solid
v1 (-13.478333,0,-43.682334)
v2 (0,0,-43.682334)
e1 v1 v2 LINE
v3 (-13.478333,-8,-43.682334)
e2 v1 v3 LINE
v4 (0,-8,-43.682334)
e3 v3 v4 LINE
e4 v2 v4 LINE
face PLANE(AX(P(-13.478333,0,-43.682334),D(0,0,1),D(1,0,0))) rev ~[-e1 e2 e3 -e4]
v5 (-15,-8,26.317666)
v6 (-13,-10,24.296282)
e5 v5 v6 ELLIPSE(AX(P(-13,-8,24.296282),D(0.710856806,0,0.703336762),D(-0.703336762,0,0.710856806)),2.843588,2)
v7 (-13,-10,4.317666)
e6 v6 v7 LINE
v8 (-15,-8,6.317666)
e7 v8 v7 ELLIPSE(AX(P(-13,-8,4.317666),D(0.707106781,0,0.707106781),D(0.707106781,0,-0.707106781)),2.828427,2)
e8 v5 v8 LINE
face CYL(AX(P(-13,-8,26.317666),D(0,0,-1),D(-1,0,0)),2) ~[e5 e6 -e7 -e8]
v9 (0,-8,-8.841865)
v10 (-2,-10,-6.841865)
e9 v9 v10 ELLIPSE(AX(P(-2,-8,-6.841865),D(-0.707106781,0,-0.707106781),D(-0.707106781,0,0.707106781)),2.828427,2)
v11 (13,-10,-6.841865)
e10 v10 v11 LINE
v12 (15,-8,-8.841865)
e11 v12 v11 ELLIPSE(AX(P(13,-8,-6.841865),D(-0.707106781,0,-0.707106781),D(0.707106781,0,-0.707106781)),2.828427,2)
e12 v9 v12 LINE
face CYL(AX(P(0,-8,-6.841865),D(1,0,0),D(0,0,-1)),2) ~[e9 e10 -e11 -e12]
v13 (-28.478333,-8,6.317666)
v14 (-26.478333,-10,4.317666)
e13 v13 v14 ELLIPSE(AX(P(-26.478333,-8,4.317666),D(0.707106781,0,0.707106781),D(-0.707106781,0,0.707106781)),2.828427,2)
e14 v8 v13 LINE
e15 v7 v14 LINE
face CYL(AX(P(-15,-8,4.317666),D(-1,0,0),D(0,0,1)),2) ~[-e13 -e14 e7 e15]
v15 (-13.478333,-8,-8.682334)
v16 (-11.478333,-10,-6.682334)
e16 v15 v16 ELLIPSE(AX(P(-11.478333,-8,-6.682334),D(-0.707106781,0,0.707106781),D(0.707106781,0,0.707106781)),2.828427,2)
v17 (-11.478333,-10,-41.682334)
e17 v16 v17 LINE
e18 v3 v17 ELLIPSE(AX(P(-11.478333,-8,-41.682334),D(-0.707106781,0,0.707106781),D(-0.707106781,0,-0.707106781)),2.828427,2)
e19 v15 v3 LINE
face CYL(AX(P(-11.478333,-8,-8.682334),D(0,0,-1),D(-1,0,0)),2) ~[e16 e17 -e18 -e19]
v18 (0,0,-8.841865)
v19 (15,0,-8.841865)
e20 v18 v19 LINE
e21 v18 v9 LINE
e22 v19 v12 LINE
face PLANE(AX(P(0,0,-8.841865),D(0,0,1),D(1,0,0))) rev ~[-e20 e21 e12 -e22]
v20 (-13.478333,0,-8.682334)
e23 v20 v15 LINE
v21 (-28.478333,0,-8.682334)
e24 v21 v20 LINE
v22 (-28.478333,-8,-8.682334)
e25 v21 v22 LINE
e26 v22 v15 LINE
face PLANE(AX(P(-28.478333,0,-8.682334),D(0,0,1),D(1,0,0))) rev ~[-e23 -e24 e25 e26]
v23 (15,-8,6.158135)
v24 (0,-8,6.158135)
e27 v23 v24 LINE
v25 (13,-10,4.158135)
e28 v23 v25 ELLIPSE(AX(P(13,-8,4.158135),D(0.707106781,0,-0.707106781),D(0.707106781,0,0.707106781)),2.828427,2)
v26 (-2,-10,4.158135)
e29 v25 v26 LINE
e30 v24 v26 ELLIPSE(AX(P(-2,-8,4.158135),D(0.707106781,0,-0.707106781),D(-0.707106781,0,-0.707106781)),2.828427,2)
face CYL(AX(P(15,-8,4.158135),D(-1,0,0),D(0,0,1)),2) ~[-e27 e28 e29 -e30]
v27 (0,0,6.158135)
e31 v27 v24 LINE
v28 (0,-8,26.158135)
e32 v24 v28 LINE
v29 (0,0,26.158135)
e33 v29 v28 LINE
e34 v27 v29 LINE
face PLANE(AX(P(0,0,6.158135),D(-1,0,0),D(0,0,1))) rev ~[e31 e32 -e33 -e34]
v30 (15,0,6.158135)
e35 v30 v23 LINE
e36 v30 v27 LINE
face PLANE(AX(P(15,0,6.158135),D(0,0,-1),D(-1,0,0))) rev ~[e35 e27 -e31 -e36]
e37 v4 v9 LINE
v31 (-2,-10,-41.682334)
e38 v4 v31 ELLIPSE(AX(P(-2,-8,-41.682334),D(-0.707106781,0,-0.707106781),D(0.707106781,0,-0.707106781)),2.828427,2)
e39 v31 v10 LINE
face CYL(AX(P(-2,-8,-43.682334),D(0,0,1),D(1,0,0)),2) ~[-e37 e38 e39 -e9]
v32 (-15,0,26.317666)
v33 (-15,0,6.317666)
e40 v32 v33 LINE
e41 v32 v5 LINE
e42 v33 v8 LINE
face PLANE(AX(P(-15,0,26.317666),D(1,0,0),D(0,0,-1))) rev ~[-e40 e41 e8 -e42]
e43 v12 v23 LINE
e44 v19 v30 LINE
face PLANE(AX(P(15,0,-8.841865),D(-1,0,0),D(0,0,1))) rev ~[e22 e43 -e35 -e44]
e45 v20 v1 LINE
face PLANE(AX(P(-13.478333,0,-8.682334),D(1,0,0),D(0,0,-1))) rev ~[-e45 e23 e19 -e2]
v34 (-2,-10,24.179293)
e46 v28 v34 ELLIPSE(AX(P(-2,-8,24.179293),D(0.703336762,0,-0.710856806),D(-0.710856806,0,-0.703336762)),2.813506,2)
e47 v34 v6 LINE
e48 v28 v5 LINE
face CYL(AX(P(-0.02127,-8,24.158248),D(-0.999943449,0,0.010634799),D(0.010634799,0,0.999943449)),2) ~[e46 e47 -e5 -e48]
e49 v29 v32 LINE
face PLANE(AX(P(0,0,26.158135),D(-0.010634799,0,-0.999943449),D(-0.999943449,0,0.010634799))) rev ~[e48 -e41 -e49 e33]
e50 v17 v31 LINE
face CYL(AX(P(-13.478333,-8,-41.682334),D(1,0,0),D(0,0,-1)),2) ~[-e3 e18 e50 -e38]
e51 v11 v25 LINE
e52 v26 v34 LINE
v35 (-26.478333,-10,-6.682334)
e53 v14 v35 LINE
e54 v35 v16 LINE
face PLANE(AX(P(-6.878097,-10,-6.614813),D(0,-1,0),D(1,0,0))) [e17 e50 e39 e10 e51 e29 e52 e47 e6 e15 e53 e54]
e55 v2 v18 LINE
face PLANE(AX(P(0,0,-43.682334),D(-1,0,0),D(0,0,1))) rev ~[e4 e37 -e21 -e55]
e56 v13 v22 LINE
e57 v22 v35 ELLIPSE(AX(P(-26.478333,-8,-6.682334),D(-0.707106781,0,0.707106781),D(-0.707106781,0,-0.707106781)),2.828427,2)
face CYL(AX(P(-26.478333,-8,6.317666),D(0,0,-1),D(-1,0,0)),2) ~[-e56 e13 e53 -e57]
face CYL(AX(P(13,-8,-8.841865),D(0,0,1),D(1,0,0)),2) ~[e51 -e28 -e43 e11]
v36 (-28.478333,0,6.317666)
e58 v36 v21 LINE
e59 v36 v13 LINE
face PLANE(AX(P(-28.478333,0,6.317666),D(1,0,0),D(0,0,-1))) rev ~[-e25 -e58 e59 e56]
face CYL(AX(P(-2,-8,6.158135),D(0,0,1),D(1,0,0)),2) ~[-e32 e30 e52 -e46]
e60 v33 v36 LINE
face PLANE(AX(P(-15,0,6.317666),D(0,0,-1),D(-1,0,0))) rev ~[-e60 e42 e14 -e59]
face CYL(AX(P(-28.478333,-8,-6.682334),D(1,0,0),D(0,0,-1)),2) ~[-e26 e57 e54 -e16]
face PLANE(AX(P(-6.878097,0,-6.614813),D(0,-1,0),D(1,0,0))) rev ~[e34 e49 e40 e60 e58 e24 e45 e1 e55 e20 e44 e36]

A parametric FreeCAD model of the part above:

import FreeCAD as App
import Part
import Sketcher

V = App.Vector


def edges_at(feature, points):
    """Names of the edges that pass closest to the given points."""
    edges = feature.Shape.Edges
    near = lambda p: min(range(len(edges)), key=lambda i: edges[i].distToShape(Part.Vertex(*p))[0])
    return sorted({f"Edge{near(p) + 1}" for p in points})


def add_polygon(sketch, points):
    """Adds a closed chain of lines whose ends are joined by coincident constraints."""
    first, n = sketch.GeometryCount, len(points)
    for a, b in zip(points, points[1:] + points[:1]):
        sketch.addGeometry(Part.LineSegment(App.Vector(*a, 0), App.Vector(*b, 0)), False)
    for i in range(n):
        sketch.addConstraint(Sketcher.Constraint("Coincident", first + i, 2, first + (i + 1) % n, 1))

doc = App.newDocument("Part")
body = doc.addObject("PartDesign::Body", "Body")

sketch1 = body.newObject("Sketcher::SketchObject", "Sketch")
sketch1.AttachmentSupport = (doc.getObject("XZ_Plane"), [""])
sketch1.MapMode = "FlatFace"
add_polygon(sketch1, [(0, 26), (-15, 26), (-15, 6), (-28, 6), (-28, -9), (-13, -9), (-13, -44), (0, -44), (0, -9), (15, -9), (15, 6), (0, 6)])
sketch1.addConstraint([
    Sketcher.Constraint("Vertical", 1),
    Sketcher.Constraint("Horizontal", 2),
    Sketcher.Constraint("Vertical", 3),
    Sketcher.Constraint("Horizontal", 4),
    Sketcher.Constraint("Vertical", 5),
    Sketcher.Constraint("Horizontal", 6),
    Sketcher.Constraint("Vertical", 7),
    Sketcher.Constraint("Horizontal", 8),
    Sketcher.Constraint("Vertical", 9),
    Sketcher.Constraint("Horizontal", 10),
    Sketcher.Constraint("Vertical", 11),
    Sketcher.Constraint("PointOnObject", 6, 2, -2),
    Sketcher.Constraint("PointOnObject", 10, 2, -2),
    Sketcher.Constraint("Equal", 2, 6),
    Sketcher.Constraint("Equal", 4, 8),
    Sketcher.Constraint("Equal", 10, 3),
    Sketcher.Constraint("Equal", 3, 9),
    Sketcher.Constraint("Equal", 1, 11),
    Sketcher.Constraint("DistanceX", 4, 1, 4, 2, 15.0),
    Sketcher.Constraint("DistanceY", 1, 2, 1, 1, 20.0),
    Sketcher.Constraint("DistanceY", 5, 2, 5, 1, 35.0),
    Sketcher.Constraint("DistanceY", 7, 1, 7, 2, 34.840469),
    Sketcher.Constraint("DistanceX", 2, 2, 2, 1, 13.478333),
    Sketcher.Constraint("DistanceY", -1, 1, 0, 2, 26.317666),
])
pad1 = body.newObject("PartDesign::Pad", "Pad")
pad1.Profile = sketch1
pad1.Length = 10
doc.recompute()

fillet = body.newObject("PartDesign::Fillet", "Fillet")
fillet.Base = (pad1, edges_at(pad1, [
    (-7.5, -10, 26.238),
    (-15, -10, 16.318),
    (-21.739, -10, 6.318),
    (-28.478, -10, -1.182),
    (-20.978, -10, -8.682),
    (-13.478, -10, -26.182),
    (-6.739, -10, -43.682),
    (0, -10, -26.262),
    (7.5, -10, -8.842),
    (15, -10, -1.342),
    (7.5, -10, 6.158),
    (0, -10, 16.158),
]))
fillet.Radius = 2

doc.recompute()
